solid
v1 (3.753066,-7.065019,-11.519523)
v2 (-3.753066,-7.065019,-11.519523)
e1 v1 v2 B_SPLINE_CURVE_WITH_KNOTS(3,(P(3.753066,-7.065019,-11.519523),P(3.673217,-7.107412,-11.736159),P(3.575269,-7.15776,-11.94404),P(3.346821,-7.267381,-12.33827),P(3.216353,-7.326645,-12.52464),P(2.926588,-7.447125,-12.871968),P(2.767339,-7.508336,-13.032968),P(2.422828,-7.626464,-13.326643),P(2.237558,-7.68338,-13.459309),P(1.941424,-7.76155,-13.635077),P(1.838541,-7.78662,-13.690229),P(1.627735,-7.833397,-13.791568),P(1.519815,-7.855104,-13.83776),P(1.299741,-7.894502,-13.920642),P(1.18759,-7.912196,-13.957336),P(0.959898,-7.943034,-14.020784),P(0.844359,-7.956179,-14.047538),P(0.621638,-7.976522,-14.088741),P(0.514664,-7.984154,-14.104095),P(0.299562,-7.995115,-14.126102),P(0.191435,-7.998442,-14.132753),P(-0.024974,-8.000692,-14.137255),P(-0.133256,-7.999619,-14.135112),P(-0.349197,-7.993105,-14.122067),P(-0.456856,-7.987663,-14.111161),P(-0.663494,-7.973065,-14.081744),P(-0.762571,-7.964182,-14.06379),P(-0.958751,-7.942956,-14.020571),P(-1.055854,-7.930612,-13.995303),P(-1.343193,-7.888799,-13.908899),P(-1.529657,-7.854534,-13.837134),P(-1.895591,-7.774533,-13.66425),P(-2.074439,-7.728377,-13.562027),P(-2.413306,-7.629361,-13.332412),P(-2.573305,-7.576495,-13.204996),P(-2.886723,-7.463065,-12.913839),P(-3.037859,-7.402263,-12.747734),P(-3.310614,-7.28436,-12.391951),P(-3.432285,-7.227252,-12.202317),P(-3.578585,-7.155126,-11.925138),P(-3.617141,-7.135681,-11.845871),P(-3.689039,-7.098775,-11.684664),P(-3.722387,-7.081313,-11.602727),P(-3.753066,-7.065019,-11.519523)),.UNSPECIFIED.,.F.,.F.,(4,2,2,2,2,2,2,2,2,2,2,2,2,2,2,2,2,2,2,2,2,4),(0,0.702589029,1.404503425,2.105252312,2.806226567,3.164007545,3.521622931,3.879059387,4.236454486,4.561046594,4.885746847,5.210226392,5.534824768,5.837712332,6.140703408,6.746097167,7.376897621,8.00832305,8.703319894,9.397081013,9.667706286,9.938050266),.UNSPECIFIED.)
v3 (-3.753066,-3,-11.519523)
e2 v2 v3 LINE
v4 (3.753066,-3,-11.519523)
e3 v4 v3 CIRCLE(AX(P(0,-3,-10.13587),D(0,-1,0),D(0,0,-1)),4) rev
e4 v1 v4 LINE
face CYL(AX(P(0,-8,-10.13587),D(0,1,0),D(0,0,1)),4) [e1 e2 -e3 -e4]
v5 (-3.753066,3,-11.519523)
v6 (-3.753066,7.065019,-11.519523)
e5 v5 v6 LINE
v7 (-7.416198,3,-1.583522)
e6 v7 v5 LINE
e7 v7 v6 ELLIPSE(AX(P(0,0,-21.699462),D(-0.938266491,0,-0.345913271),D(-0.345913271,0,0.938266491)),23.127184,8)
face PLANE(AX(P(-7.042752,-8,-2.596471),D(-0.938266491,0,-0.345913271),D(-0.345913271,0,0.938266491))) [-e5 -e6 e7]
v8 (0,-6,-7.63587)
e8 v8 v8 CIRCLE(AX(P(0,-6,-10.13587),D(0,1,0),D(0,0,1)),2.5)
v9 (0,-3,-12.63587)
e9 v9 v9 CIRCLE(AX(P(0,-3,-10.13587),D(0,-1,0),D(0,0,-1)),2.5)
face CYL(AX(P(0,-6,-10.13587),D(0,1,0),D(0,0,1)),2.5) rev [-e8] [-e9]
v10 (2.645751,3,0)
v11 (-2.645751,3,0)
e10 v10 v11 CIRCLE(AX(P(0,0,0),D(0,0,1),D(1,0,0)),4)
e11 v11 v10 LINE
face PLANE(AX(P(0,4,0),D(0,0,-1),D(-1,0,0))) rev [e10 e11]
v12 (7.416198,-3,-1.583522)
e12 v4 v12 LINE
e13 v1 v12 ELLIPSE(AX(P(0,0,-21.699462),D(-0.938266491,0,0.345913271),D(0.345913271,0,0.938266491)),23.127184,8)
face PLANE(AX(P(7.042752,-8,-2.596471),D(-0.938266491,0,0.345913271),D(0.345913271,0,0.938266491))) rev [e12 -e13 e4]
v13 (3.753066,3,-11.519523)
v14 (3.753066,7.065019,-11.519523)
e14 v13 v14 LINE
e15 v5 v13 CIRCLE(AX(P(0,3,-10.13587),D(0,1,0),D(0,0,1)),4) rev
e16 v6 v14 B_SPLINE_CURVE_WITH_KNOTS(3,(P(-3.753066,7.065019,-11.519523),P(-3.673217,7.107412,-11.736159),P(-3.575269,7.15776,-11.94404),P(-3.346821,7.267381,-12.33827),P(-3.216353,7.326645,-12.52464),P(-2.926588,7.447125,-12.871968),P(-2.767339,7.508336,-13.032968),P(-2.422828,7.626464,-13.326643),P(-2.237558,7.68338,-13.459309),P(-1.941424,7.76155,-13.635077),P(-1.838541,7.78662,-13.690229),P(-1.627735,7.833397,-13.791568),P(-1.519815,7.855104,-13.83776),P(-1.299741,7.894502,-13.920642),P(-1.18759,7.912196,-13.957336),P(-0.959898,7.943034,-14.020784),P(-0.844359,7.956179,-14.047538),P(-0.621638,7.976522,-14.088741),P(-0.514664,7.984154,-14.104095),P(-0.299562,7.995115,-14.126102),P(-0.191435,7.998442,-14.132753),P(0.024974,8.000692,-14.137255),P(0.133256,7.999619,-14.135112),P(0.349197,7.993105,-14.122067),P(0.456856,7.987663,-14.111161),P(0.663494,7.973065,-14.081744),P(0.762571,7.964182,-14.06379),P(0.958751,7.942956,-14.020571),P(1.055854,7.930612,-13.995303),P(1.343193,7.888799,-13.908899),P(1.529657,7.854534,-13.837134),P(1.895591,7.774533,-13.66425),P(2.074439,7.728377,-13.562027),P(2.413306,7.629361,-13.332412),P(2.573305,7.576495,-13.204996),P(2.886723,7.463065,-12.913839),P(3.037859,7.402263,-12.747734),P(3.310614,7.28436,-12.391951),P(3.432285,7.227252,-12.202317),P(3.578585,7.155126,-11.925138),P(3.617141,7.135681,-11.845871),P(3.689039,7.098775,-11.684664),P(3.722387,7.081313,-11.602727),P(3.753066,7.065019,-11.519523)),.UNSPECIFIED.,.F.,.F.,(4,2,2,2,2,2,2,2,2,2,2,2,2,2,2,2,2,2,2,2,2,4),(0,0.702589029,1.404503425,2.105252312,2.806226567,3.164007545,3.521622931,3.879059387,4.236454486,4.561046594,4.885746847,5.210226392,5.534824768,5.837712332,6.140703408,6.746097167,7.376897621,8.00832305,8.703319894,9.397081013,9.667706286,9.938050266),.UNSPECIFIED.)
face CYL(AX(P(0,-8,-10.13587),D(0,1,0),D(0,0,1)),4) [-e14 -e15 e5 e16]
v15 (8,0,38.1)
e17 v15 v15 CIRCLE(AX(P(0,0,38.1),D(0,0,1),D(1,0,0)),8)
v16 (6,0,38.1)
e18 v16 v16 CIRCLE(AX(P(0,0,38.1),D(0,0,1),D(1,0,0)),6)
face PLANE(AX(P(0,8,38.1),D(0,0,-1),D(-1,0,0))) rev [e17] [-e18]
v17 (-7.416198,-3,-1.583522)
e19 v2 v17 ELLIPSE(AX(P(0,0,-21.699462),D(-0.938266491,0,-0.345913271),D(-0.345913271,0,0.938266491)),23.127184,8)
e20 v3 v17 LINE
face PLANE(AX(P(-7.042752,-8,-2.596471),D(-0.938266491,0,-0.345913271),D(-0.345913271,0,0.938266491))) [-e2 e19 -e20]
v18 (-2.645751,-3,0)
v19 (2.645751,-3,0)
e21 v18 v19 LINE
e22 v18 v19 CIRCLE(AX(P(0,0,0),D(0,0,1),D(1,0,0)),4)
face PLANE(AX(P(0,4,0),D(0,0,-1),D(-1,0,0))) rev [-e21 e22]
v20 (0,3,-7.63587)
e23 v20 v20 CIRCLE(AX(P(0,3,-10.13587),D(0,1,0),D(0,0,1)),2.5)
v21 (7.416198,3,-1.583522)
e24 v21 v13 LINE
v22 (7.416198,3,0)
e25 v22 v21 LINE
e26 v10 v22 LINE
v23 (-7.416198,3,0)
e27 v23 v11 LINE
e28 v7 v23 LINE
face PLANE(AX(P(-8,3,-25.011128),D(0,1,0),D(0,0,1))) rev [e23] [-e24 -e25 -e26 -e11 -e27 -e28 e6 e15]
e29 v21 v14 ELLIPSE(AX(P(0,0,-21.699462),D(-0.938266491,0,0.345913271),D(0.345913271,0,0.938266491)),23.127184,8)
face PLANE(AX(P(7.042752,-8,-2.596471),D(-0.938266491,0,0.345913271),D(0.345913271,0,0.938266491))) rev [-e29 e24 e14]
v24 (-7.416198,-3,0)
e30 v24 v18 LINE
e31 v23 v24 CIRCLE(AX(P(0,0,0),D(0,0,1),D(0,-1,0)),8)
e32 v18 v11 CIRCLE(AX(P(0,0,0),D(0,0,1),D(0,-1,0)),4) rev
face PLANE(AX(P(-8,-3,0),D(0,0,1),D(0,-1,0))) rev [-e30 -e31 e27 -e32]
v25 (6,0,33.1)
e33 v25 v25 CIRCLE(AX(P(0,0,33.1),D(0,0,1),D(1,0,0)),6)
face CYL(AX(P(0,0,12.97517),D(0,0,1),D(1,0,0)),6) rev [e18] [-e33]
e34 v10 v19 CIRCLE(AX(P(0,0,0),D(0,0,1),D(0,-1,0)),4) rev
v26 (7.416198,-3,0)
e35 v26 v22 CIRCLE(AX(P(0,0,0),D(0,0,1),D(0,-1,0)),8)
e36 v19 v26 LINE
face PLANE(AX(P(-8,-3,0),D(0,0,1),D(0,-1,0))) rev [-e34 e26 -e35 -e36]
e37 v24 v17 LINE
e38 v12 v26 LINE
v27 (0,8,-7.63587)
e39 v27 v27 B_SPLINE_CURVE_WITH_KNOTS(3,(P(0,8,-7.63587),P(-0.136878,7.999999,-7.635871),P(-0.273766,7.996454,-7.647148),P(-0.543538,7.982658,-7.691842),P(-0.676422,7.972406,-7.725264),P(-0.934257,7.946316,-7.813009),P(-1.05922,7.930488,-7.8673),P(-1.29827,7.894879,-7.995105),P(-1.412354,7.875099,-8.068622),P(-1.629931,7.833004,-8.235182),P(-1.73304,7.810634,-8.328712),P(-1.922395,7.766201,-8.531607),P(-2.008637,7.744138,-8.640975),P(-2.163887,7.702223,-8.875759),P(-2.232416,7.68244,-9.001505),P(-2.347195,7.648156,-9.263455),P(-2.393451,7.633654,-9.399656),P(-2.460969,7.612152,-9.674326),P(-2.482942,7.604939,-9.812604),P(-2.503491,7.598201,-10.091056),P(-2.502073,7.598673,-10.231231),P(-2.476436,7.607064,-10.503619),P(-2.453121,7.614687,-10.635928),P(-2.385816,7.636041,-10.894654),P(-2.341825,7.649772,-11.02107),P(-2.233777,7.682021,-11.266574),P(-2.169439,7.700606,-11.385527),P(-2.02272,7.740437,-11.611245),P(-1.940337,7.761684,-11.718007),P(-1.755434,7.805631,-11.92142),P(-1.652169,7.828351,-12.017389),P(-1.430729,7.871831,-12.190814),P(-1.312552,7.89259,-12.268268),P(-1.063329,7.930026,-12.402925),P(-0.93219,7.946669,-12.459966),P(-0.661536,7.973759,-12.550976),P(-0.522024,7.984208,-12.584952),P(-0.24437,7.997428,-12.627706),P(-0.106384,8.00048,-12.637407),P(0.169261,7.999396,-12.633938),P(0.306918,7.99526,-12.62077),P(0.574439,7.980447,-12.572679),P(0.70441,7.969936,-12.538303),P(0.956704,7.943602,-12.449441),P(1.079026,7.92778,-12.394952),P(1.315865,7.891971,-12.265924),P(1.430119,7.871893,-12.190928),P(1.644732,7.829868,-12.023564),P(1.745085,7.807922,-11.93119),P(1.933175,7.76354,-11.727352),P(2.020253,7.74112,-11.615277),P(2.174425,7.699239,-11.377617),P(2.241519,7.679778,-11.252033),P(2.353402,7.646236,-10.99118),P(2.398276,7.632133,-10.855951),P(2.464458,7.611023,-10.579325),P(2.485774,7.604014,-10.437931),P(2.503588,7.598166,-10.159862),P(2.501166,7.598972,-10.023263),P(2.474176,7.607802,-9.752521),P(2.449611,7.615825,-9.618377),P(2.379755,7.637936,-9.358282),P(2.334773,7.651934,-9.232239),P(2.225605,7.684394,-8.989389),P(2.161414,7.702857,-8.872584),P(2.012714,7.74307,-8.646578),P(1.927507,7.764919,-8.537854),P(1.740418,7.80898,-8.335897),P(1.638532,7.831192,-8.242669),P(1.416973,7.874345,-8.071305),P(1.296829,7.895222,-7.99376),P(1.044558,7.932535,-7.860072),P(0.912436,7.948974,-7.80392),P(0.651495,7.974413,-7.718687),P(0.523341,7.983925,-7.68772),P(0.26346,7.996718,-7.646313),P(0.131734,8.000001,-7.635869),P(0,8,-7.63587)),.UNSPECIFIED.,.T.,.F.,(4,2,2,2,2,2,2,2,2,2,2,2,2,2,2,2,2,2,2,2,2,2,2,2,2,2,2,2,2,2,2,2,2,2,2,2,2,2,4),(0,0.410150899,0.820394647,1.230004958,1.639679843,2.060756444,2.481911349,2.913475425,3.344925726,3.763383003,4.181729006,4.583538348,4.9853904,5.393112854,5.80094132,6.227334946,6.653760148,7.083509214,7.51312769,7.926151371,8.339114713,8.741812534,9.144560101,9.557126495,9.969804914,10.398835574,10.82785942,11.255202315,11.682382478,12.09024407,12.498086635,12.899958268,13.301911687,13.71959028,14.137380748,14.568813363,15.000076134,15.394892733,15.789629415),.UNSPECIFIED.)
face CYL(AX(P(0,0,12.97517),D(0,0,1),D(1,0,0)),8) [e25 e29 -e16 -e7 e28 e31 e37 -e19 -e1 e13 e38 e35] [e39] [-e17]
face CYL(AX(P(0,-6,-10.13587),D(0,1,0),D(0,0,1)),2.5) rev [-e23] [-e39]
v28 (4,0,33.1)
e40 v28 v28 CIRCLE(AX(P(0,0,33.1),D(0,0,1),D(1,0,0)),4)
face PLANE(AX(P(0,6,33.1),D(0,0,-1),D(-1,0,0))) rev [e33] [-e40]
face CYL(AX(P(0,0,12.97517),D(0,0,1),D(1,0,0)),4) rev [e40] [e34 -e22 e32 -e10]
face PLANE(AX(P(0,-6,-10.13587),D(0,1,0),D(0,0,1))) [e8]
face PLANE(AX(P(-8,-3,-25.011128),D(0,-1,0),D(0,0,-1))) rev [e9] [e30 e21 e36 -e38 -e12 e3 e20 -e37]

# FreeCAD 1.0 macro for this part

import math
import FreeCAD as App
import Part
import Sketcher
from FreeCAD import Vector

doc = App.newDocument("Part")
params = doc.addObject("Spreadsheet::Sheet", "Params")
for row, (alias, value) in enumerate([
    ("sketch1_width", "1 mm"),
    ("sketch1_width2", "5 mm"),
    ("sketch1_height", "20 mm"),
    ("sketch1_height2", "33.1 mm"),
    ("revolution_angle", "360 deg"),
    ("sketch2_radius", "4 mm"),
    ("sketch2_width", "16 mm"),
    ("sketch2_height", "25 mm"),
    ("sketch3_width", "6 mm"),
    ("sketch4_diameter", "5 mm"),
    ("pocket3_length", "40.744308 mm"),
    ("pocket3_length2", "6 mm"),
], start=1):
    params.set(f"A{row}", alias)
    params.set(f"B{row}", "=" + value)
    params.setAlias(f"B{row}", alias)

body = doc.addObject("PartDesign::Body", "Body")

# Sketch on YZ plane
sketch1 = body.newObject("Sketcher::SketchObject", "Sketch")
sketch1.AttachmentSupport = (doc.getObject("YZ_Plane"), [""])
sketch1.MapMode = "FlatFace"
sketch1.addGeometry(Part.LineSegment(Vector(4, 33.1, 0), Vector(4, 0, 0)), False)
sketch1.addGeometry(Part.LineSegment(Vector(4, 0, 0), Vector(3, 0, 0)), False)
sketch1.addGeometry(Part.LineSegment(Vector(3, 0, 0), Vector(3, -20, 0)), False)
sketch1.addGeometry(Part.LineSegment(Vector(3, -20, 0), Vector(8, -20, 0)), False)
sketch1.addGeometry(Part.LineSegment(Vector(8, -20, 0), Vector(8, 38.1, 0)), False)
sketch1.addGeometry(Part.LineSegment(Vector(8, 38.1, 0), Vector(6, 38.1, 0)), False)
sketch1.addGeometry(Part.LineSegment(Vector(6, 38.1, 0), Vector(6, 33.1, 0)), False)
sketch1.addGeometry(Part.LineSegment(Vector(6, 33.1, 0), Vector(4, 33.1, 0)), False)
sketch1.addConstraint(Sketcher.Constraint("Coincident", 0, 2, 1, 1))
sketch1.addConstraint(Sketcher.Constraint("Coincident", 1, 2, 2, 1))
sketch1.addConstraint(Sketcher.Constraint("Coincident", 2, 2, 3, 1))
sketch1.addConstraint(Sketcher.Constraint("Coincident", 3, 2, 4, 1))
sketch1.addConstraint(Sketcher.Constraint("Coincident", 4, 2, 5, 1))
sketch1.addConstraint(Sketcher.Constraint("Coincident", 5, 2, 6, 1))
sketch1.addConstraint(Sketcher.Constraint("Coincident", 6, 2, 7, 1))
sketch1.addConstraint(Sketcher.Constraint("Coincident", 7, 2, 0, 1))
sketch1.addConstraint(Sketcher.Constraint("Vertical", 0))
sketch1.addConstraint(Sketcher.Constraint("Horizontal", 1))
sketch1.addConstraint(Sketcher.Constraint("Vertical", 2))
sketch1.addConstraint(Sketcher.Constraint("Horizontal", 3))
sketch1.addConstraint(Sketcher.Constraint("Vertical", 4))
sketch1.addConstraint(Sketcher.Constraint("Horizontal", 5))
sketch1.addConstraint(Sketcher.Constraint("Vertical", 6))
sketch1.addConstraint(Sketcher.Constraint("Horizontal", 7))
sketch1.addConstraint(Sketcher.Constraint("PointOnObject", 0, 2, -1))
sketch1.addConstraint(Sketcher.Constraint("Equal", 5, 7))
sketch1.addConstraint(Sketcher.Constraint("Equal", 3, 6))
sketch1.addConstraint(Sketcher.Constraint("DistanceX", 1, 2, 1, 1, 1.0))
sketch1.addConstraint(Sketcher.Constraint("DistanceX", 3, 1, 3, 2, 5.0))
sketch1.addConstraint(Sketcher.Constraint("DistanceY", 2, 2, 2, 1, 20.0))
sketch1.addConstraint(Sketcher.Constraint("DistanceY", 0, 2, 0, 1, 33.1))
sketch1.addConstraint(Sketcher.Constraint("DistanceX", -1, 1, 0, 2, 4.0))
sketch1.setExpression("Constraints[19]", "Params.sketch1_width")
sketch1.setExpression("Constraints[20]", "Params.sketch1_width2")
sketch1.setExpression("Constraints[21]", "Params.sketch1_height")
sketch1.setExpression("Constraints[22]", "Params.sketch1_height2")
revolution = body.newObject("PartDesign::Revolution", "Revolution")
revolution.Profile = sketch1
revolution.ReferenceAxis = (sketch1, ["V_Axis"])
revolution.setExpression("Angle", "Params.revolution_angle")

# Sketch on XZ plane
sketch2 = body.newObject("Sketcher::SketchObject", "Sketch001")
sketch2.AttachmentSupport = (doc.getObject("XZ_Plane"), [""])
sketch2.MapMode = "FlatFace"
sketch2.addGeometry(Part.LineSegment(Vector(8, 0, 0), Vector(8, -25, 0)), False)
sketch2.addGeometry(Part.LineSegment(Vector(8, -25, 0), Vector(-8, -25, 0)), False)
sketch2.addGeometry(Part.LineSegment(Vector(-8, -25, 0), Vector(-8, 0, 0)), False)
sketch2.addGeometry(Part.LineSegment(Vector(-8, 0, 0), Vector(-3.753066, -11.519523, 0)), False)
sketch2.addGeometry(Part.ArcOfCircle(Part.Circle(Vector(0, -10.13587, 0), Vector(0, 0, 1), 4), math.radians(-159.762445), math.radians(-20.237555)), False)
sketch2.addGeometry(Part.LineSegment(Vector(3.753066, -11.519523, 0), Vector(8, 0, 0)), False)
sketch2.addConstraint(Sketcher.Constraint("Coincident", 0, 2, 1, 1))
sketch2.addConstraint(Sketcher.Constraint("Coincident", 1, 2, 2, 1))
sketch2.addConstraint(Sketcher.Constraint("Coincident", 2, 2, 3, 1))
sketch2.addConstraint(Sketcher.Constraint("Tangent", 3, 2, 4, 1))
sketch2.addConstraint(Sketcher.Constraint("Tangent", 4, 2, 5, 1))
sketch2.addConstraint(Sketcher.Constraint("Coincident", 5, 2, 0, 1))
sketch2.addConstraint(Sketcher.Constraint("Vertical", 0))
sketch2.addConstraint(Sketcher.Constraint("Horizontal", 1))
sketch2.addConstraint(Sketcher.Constraint("Vertical", 2))
sketch2.addConstraint(Sketcher.Constraint("Symmetric", 2, 2, 5, 2, -1, 1))
sketch2.addConstraint(Sketcher.Constraint("Symmetric", 3, 2, 4, 2, -2))
sketch2.addConstraint(Sketcher.Constraint("Radius", 4, 4.0))
sketch2.addConstraint(Sketcher.Constraint("DistanceX", 1, 2, 1, 1, 16.0))
sketch2.addConstraint(Sketcher.Constraint("DistanceY", 0, 2, 0, 1, 25.0))
sketch2.addConstraint(Sketcher.Constraint("DistanceY", 4, 3, -1, 1, 10.13587))
sketch2.setExpression("Constraints[11]", "Params.sketch2_radius")
sketch2.setExpression("Constraints[12]", "Params.sketch2_width")
sketch2.setExpression("Constraints[13]", "Params.sketch2_height")
pocket1 = body.newObject("PartDesign::Pocket", "Pocket")
pocket1.Profile = sketch2
pocket1.Type = "ThroughAll"
pocket1.Midplane = True

# Sketch on YZ plane
sketch3 = body.newObject("Sketcher::SketchObject", "Sketch002")
sketch3.AttachmentSupport = (doc.getObject("YZ_Plane"), [""])
sketch3.MapMode = "FlatFace"
sketch3.addGeometry(Part.LineSegment(Vector(3, 0, 0), Vector(-3, 0, 0)), False)
sketch3.addGeometry(Part.LineSegment(Vector(-3, 0, 0), Vector(-3, -25.011128, 0)), False)
sketch3.addGeometry(Part.LineSegment(Vector(-3, -25.011128, 0), Vector(3, -25.011128, 0)), False)
sketch3.addGeometry(Part.LineSegment(Vector(3, -25.011128, 0), Vector(3, 0, 0)), False)
sketch3.addConstraint(Sketcher.Constraint("Coincident", 0, 2, 1, 1))
sketch3.addConstraint(Sketcher.Constraint("Coincident", 1, 2, 2, 1))
sketch3.addConstraint(Sketcher.Constraint("Coincident", 2, 2, 3, 1))
sketch3.addConstraint(Sketcher.Constraint("Coincident", 3, 2, 0, 1))
sketch3.addConstraint(Sketcher.Constraint("Horizontal", 0))
sketch3.addConstraint(Sketcher.Constraint("Vertical", 1))
sketch3.addConstraint(Sketcher.Constraint("Horizontal", 2))
sketch3.addConstraint(Sketcher.Constraint("Vertical", 3))
sketch3.addConstraint(Sketcher.Constraint("Symmetric", 0, 2, 3, 2, -1, 1))
sketch3.addConstraint(Sketcher.Constraint("DistanceX", 0, 2, 0, 1, 6.0))
sketch3.addConstraint(Sketcher.Constraint("DistanceY", 1, 2, 1, 1, 25.011128))
sketch3.setExpression("Constraints[9]", "Params.sketch3_width")
pocket2 = body.newObject("PartDesign::Pocket", "Pocket001")
pocket2.Profile = sketch3
pocket2.Type = "ThroughAll"
pocket2.Midplane = True

# Sketch on XZ plane
sketch4 = body.newObject("Sketcher::SketchObject", "Sketch003")
sketch4.AttachmentSupport = (doc.getObject("XZ_Plane"), [""])
sketch4.MapMode = "FlatFace"
sketch4.addGeometry(Part.Circle(Vector(0, -10.13587, 0), Vector(0, 0, 1), 2.5), False)
sketch4.addConstraint(Sketcher.Constraint("PointOnObject", 0, 3, -2))
sketch4.addConstraint(Sketcher.Constraint("Diameter", 0, 5.0))
sketch4.addConstraint(Sketcher.Constraint("DistanceY", 0, 3, -1, 1, 10.13587))
sketch4.setExpression("Constraints[1]", "Params.sketch4_diameter")
pocket3 = body.newObject("PartDesign::Pocket", "Pocket002")
pocket3.Profile = sketch4
pocket3.Type = "TwoLengths"
pocket3.setExpression("Length", "Params.pocket3_length")
pocket3.setExpression("Length2", "Params.pocket3_length2")

doc.recompute()
